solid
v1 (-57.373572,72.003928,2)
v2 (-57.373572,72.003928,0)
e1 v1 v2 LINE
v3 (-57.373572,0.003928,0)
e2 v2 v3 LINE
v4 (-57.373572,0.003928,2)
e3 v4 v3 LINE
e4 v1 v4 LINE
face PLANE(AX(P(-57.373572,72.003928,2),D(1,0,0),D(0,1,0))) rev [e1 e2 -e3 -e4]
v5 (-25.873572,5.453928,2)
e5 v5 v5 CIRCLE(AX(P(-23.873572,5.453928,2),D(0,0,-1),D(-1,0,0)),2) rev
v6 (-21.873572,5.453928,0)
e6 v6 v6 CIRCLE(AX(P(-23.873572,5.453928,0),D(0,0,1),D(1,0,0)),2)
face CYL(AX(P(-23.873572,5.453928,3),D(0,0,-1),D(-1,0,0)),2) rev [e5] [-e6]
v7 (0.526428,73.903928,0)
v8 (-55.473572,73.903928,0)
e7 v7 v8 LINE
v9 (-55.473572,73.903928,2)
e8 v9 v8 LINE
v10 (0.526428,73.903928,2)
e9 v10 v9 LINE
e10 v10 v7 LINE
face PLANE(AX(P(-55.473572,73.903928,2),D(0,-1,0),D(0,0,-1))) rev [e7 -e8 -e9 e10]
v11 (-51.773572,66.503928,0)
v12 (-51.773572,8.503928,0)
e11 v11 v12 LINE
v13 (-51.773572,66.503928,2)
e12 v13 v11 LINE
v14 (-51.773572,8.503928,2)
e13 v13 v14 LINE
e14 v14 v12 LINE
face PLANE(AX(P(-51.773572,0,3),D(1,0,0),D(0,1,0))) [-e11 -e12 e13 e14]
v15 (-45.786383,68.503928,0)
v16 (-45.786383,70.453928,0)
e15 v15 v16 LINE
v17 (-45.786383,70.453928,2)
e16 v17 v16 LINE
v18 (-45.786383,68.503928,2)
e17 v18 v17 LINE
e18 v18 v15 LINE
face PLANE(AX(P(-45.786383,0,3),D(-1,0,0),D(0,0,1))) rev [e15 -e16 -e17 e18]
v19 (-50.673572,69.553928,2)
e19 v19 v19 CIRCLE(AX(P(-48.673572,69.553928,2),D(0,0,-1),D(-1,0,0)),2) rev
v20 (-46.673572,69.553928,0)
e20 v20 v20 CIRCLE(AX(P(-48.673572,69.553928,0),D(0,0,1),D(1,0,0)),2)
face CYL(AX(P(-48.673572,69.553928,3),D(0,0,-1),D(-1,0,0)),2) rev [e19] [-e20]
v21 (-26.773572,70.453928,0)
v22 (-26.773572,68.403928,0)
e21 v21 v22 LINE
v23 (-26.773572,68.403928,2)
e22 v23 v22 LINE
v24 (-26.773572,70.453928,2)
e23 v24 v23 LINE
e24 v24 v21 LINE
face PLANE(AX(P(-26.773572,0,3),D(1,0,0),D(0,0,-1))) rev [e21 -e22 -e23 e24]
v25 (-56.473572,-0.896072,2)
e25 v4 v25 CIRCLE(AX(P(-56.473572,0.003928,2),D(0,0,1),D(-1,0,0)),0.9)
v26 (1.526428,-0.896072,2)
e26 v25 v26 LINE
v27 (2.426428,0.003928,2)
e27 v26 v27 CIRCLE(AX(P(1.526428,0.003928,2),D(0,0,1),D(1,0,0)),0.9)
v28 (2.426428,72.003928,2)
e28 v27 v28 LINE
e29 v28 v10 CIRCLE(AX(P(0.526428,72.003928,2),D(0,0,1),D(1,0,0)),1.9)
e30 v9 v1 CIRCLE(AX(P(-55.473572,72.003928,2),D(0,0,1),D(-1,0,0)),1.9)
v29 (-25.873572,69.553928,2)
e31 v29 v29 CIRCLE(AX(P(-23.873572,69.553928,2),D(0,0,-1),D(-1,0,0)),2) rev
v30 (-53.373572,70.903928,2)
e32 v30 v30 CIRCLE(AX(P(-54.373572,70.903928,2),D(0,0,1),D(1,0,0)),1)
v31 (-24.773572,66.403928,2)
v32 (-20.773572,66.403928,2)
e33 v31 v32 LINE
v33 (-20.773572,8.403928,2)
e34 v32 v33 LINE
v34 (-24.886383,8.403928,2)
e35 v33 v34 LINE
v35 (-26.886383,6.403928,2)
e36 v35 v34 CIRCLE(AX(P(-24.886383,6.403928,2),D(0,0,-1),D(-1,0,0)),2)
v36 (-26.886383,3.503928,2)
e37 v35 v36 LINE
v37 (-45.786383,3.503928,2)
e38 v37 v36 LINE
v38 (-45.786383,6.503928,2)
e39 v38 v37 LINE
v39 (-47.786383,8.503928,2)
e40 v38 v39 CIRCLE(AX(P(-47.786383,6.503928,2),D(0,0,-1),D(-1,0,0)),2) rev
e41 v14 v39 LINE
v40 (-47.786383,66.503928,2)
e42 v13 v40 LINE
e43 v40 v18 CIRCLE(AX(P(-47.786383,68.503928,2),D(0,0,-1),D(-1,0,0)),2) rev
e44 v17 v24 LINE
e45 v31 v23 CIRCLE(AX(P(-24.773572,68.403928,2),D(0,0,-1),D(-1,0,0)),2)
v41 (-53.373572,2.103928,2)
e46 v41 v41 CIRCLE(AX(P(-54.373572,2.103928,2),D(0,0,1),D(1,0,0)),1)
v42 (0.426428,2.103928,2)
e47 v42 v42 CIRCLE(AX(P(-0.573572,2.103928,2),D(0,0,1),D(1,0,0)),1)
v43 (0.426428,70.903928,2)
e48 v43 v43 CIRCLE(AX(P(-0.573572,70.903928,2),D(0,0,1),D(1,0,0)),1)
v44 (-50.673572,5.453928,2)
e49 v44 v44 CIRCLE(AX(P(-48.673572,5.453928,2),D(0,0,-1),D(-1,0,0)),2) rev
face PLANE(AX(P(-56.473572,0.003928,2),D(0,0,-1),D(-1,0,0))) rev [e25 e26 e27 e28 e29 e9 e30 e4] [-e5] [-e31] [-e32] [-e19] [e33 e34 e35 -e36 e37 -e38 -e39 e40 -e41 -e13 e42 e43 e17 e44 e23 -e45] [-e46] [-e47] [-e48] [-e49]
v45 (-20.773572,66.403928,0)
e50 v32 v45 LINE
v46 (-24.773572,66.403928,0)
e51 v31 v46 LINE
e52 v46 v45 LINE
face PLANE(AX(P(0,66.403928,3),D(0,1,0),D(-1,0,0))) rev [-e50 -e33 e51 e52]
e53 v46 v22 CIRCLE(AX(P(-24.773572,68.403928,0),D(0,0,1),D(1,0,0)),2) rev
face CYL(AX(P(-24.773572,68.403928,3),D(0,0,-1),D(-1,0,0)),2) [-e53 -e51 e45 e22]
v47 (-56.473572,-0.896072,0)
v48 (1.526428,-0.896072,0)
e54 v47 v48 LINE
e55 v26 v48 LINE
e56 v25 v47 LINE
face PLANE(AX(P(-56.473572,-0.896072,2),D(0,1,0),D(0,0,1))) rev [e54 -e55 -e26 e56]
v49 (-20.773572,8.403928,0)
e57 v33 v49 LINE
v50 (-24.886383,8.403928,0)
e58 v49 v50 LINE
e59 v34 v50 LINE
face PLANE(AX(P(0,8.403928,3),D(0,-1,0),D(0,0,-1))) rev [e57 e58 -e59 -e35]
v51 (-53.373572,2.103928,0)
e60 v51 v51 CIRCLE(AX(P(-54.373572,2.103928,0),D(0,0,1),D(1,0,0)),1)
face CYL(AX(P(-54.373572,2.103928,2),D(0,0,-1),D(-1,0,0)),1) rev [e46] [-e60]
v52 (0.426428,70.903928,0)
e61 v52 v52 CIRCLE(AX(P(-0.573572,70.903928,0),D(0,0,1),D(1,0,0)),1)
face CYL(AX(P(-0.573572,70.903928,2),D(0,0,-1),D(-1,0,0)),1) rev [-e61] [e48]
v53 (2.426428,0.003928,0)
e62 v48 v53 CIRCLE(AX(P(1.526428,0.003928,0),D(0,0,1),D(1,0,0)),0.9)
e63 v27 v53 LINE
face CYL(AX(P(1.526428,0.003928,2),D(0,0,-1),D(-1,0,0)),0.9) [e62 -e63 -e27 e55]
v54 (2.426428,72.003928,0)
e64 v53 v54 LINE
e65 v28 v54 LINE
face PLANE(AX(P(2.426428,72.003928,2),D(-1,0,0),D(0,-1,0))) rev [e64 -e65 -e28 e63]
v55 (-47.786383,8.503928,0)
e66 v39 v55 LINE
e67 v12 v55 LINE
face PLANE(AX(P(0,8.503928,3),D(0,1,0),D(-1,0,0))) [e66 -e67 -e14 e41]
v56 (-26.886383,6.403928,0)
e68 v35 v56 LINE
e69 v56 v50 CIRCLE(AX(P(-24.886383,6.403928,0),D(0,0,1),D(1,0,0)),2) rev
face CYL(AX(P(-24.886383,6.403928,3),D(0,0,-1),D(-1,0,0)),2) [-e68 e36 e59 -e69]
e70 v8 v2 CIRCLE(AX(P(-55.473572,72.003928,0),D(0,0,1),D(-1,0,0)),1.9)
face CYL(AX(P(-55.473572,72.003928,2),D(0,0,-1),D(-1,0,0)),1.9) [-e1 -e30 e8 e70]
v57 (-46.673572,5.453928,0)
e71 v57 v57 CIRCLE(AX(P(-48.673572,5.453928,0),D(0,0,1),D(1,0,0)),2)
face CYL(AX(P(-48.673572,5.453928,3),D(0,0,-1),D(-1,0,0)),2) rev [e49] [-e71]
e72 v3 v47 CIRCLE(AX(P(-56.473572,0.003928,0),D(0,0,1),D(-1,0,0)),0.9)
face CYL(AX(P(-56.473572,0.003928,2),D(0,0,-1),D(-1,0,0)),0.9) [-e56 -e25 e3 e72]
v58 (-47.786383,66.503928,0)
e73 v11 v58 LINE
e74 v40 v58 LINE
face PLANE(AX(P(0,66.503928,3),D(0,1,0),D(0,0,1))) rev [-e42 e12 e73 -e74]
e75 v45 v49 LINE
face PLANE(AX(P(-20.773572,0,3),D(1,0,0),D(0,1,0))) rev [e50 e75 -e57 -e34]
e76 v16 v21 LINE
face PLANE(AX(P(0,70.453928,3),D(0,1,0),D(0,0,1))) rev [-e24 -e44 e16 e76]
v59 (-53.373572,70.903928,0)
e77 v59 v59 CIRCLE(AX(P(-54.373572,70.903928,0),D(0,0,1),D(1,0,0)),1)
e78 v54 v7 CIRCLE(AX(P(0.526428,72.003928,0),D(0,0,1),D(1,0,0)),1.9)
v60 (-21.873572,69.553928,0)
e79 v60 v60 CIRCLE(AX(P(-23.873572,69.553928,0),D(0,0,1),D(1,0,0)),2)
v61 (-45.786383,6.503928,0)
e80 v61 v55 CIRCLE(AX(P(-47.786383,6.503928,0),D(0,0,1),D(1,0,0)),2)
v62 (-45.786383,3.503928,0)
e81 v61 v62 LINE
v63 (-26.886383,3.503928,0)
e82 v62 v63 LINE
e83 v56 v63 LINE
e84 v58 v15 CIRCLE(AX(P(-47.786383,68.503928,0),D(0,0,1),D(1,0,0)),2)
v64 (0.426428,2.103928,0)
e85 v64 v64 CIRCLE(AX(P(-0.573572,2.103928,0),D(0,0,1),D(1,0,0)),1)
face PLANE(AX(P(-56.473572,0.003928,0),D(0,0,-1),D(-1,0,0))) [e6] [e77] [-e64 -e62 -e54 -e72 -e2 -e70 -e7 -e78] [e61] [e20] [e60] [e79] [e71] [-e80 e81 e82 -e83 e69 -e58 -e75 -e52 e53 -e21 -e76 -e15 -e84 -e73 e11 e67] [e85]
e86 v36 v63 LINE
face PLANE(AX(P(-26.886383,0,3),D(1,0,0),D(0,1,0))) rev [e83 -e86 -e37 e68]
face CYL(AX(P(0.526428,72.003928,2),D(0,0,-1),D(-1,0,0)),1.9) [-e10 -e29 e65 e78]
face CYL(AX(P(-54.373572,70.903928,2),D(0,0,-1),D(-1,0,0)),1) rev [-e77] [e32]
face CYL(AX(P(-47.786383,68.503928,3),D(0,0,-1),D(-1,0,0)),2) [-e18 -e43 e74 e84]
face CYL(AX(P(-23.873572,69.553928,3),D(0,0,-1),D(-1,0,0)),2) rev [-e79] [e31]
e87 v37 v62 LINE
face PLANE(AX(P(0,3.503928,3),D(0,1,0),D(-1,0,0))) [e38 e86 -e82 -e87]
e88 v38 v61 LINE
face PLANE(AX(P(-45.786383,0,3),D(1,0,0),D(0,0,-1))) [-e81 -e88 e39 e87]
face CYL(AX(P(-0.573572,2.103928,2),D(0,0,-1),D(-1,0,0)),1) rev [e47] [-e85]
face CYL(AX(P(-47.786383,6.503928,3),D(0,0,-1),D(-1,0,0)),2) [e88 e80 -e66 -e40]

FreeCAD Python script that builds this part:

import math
import FreeCAD as App
import Part
import Sketcher
from FreeCAD import Vector

doc = App.newDocument("Part")
body = doc.addObject("PartDesign::Body", "Body")

sketch1 = body.newObject("Sketcher::SketchObject", "Sketch")
sketch1.AttachmentSupport = (doc.getObject("XY_Plane"), [""])
sketch1.MapMode = "FlatFace"
sketch1.addGeometry(Part.LineSegment(Vector(-56.5, -0.9, 0), Vector(1.5, -0.9, 0)), False)
sketch1.addGeometry(Part.ArcOfCircle(Part.Circle(Vector(1.5, 0, 0), Vector(0, 0, 1), 0.9), math.radians(-90), math.radians(0)), False)
sketch1.addGeometry(Part.LineSegment(Vector(2.4, 0, 0), Vector(2.4, 72, 0)), False)
sketch1.addGeometry(Part.ArcOfCircle(Part.Circle(Vector(0.5, 72, 0), Vector(0, 0, 1), 1.9), math.radians(0), math.radians(90)), False)
sketch1.addGeometry(Part.LineSegment(Vector(0.5, 73.9, 0), Vector(-55.5, 73.9, 0)), False)
sketch1.addGeometry(Part.ArcOfCircle(Part.Circle(Vector(-55.5, 72, 0), Vector(0, 0, 1), 1.9), math.radians(90), math.radians(180)), False)
sketch1.addGeometry(Part.LineSegment(Vector(-57.4, 72, 0), Vector(-57.4, 0, 0)), False)
sketch1.addGeometry(Part.ArcOfCircle(Part.Circle(Vector(-56.5, 0, 0), Vector(0, 0, 1), 0.9), math.radians(180), math.radians(270)), False)
sketch1.addGeometry(Part.Circle(Vector(-54.4, 2.1, 0), Vector(0, 0, 1), 1), False)
sketch1.addGeometry(Part.Circle(Vector(-0.6, 2.1, 0), Vector(0, 0, 1), 1), False)
sketch1.addGeometry(Part.Circle(Vector(-54.4, 70.9, 0), Vector(0, 0, 1), 1), False)
sketch1.addGeometry(Part.Circle(Vector(-0.6, 70.9, 0), Vector(0, 0, 1), 1), False)
sketch1.addConstraint(Sketcher.Constraint("Tangent", 0, 2, 1, 1))
sketch1.addConstraint(Sketcher.Constraint("Tangent", 1, 2, 2, 1))
sketch1.addConstraint(Sketcher.Constraint("Tangent", 2, 2, 3, 1))
sketch1.addConstraint(Sketcher.Constraint("Tangent", 3, 2, 4, 1))
sketch1.addConstraint(Sketcher.Constraint("Tangent", 4, 2, 5, 1))
sketch1.addConstraint(Sketcher.Constraint("Tangent", 5, 2, 6, 1))
sketch1.addConstraint(Sketcher.Constraint("Tangent", 6, 2, 7, 1))
sketch1.addConstraint(Sketcher.Constraint("Tangent", 7, 2, 0, 1))
sketch1.addConstraint(Sketcher.Constraint("Horizontal", 0))
sketch1.addConstraint(Sketcher.Constraint("Vertical", 2))
sketch1.addConstraint(Sketcher.Constraint("Horizontal", 4))
sketch1.addConstraint(Sketcher.Constraint("Vertical", 6))
sketch1.addConstraint(Sketcher.Constraint("Equal", 3, 5))
sketch1.addConstraint(Sketcher.Constraint("Equal", 1, 7))
sketch1.addConstraint(Sketcher.Constraint("Equal", 8, 9))
sketch1.addConstraint(Sketcher.Constraint("Equal", 9, 10))
sketch1.addConstraint(Sketcher.Constraint("Equal", 10, 11))
sketch1.addConstraint(Sketcher.Constraint("Horizontal", 8, 3, 9, 3))
sketch1.addConstraint(Sketcher.Constraint("Horizontal", 10, 3, 11, 3))
sketch1.addConstraint(Sketcher.Constraint("Vertical", 8, 3, 10, 3))
sketch1.addConstraint(Sketcher.Constraint("Vertical", 9, 3, 11, 3))
sketch1.addConstraint(Sketcher.Constraint("Diameter", 8, 2.0))
sketch1.addConstraint(Sketcher.Constraint("Radius", 1, 0.9))
sketch1.addConstraint(Sketcher.Constraint("Radius", 3, 1.9))
sketch1.addConstraint(Sketcher.Constraint("DistanceX", 0, 1, 0, 2, 58.0))
sketch1.addConstraint(Sketcher.Constraint("DistanceY", 2, 1, 2, 2, 72.0))
sketch1.addConstraint(Sketcher.Constraint("DistanceY", 0, 2, 9, 3, 3.0))
sketch1.addConstraint(Sketcher.Constraint("DistanceX", 9, 3, 1, 2, 3.0))
sketch1.addConstraint(Sketcher.Constraint("DistanceY", 11, 3, 3, 2, 3.0))
sketch1.addConstraint(Sketcher.Constraint("DistanceX", 5, 2, 10, 3, 3.0))
sketch1.addConstraint(Sketcher.Constraint("DistanceX", -1, 1, 1, 3, 1.526428))
sketch1.addConstraint(Sketcher.Constraint("DistanceY", -1, 1, 1, 3, 0.003928))
pad1 = body.newObject("PartDesign::Pad", "Pad")
pad1.Profile = sketch1
pad1.Length = 2

sketch2 = body.newObject("Sketcher::SketchObject", "Sketch001")
sketch2.AttachmentSupport = (doc.getObject("XY_Plane"), [""])
sketch2.MapMode = "FlatFace"
sketch2.addGeometry(Part.LineSegment(Vector(-51.8, 66.5, 0), Vector(-51.8, 8.5, 0)), False)
sketch2.addGeometry(Part.LineSegment(Vector(-51.8, 8.5, 0), Vector(-47.8, 8.5, 0)), False)
sketch2.addGeometry(Part.ArcOfCircle(Part.Circle(Vector(-47.8, 6.5, 0), Vector(0, 0, 1), 2), math.radians(0), math.radians(90)), False)
sketch2.addGeometry(Part.LineSegment(Vector(-45.8, 6.5, 0), Vector(-45.8, 3.5, 0)), False)
sketch2.addGeometry(Part.LineSegment(Vector(-45.8, 3.5, 0), Vector(-26.9, 3.5, 0)), False)
sketch2.addGeometry(Part.LineSegment(Vector(-26.9, 3.5, 0), Vector(-26.9, 6.4, 0)), False)
sketch2.addGeometry(Part.ArcOfCircle(Part.Circle(Vector(-24.9, 6.4, 0), Vector(0, 0, 1), 2), math.radians(90), math.radians(180)), False)
sketch2.addGeometry(Part.LineSegment(Vector(-24.9, 8.4, 0), Vector(-20.8, 8.4, 0)), False)
sketch2.addGeometry(Part.LineSegment(Vector(-20.8, 8.4, 0), Vector(-20.8, 66.4, 0)), False)
sketch2.addGeometry(Part.LineSegment(Vector(-20.8, 66.4, 0), Vector(-24.8, 66.4, 0)), False)
sketch2.addGeometry(Part.ArcOfCircle(Part.Circle(Vector(-24.8, 68.4, 0), Vector(0, 0, 1), 2), math.radians(180), math.radians(270)), False)
sketch2.addGeometry(Part.LineSegment(Vector(-26.8, 68.4, 0), Vector(-26.8, 70.5, 0)), False)
sketch2.addGeometry(Part.LineSegment(Vector(-26.8, 70.5, 0), Vector(-45.8, 70.5, 0)), False)
sketch2.addGeometry(Part.LineSegment(Vector(-45.8, 70.5, 0), Vector(-45.8, 68.5, 0)), False)
sketch2.addGeometry(Part.ArcOfCircle(Part.Circle(Vector(-47.8, 68.5, 0), Vector(0, 0, 1), 2), math.radians(-90), math.radians(0)), False)
sketch2.addGeometry(Part.LineSegment(Vector(-47.8, 66.5, 0), Vector(-51.8, 66.5, 0)), False)
sketch2.addGeometry(Part.Circle(Vector(-23.9, 69.6, 0), Vector(0, 0, 1), 2), False)
sketch2.addGeometry(Part.Circle(Vector(-48.7, 69.6, 0), Vector(0, 0, 1), 2), False)
sketch2.addGeometry(Part.Circle(Vector(-48.7, 5.5, 0), Vector(0, 0, 1), 2), False)
sketch2.addGeometry(Part.Circle(Vector(-23.9, 5.5, 0), Vector(0, 0, 1), 2), False)
sketch2.addConstraint(Sketcher.Constraint("Coincident", 0, 2, 1, 1))
sketch2.addConstraint(Sketcher.Constraint("Tangent", 1, 2, 2, 2))
sketch2.addConstraint(Sketcher.Constraint("Tangent", 2, 1, 3, 1))
sketch2.addConstraint(Sketcher.Constraint("Coincident", 3, 2, 4, 1))
sketch2.addConstraint(Sketcher.Constraint("Coincident", 4, 2, 5, 1))
sketch2.addConstraint(Sketcher.Constraint("Tangent", 5, 2, 6, 2))
sketch2.addConstraint(Sketcher.Constraint("Tangent", 6, 1, 7, 1))
sketch2.addConstraint(Sketcher.Constraint("Coincident", 7, 2, 8, 1))
sketch2.addConstraint(Sketcher.Constraint("Coincident", 8, 2, 9, 1))
sketch2.addConstraint(Sketcher.Constraint("Tangent", 9, 2, 10, 2))
sketch2.addConstraint(Sketcher.Constraint("Tangent", 10, 1, 11, 1))
sketch2.addConstraint(Sketcher.Constraint("Coincident", 11, 2, 12, 1))
sketch2.addConstraint(Sketcher.Constraint("Coincident", 12, 2, 13, 1))
sketch2.addConstraint(Sketcher.Constraint("Tangent", 13, 2, 14, 2))
sketch2.addConstraint(Sketcher.Constraint("Tangent", 14, 1, 15, 1))
sketch2.addConstraint(Sketcher.Constraint("Coincident", 15, 2, 0, 1))
sketch2.addConstraint(Sketcher.Constraint("Vertical", 0))
sketch2.addConstraint(Sketcher.Constraint("Horizontal", 1))
sketch2.addConstraint(Sketcher.Constraint("Vertical", 3))
sketch2.addConstraint(Sketcher.Constraint("Horizontal", 4))
sketch2.addConstraint(Sketcher.Constraint("Vertical", 5))
sketch2.addConstraint(Sketcher.Constraint("Horizontal", 7))
sketch2.addConstraint(Sketcher.Constraint("Vertical", 8))
sketch2.addConstraint(Sketcher.Constraint("Horizontal", 9))
sketch2.addConstraint(Sketcher.Constraint("Vertical", 11))
sketch2.addConstraint(Sketcher.Constraint("Horizontal", 12))
sketch2.addConstraint(Sketcher.Constraint("Vertical", 13))
sketch2.addConstraint(Sketcher.Constraint("Horizontal", 15))
sketch2.addConstraint(Sketcher.Constraint("Equal", 2, 6))
sketch2.addConstraint(Sketcher.Constraint("Equal", 6, 10))
sketch2.addConstraint(Sketcher.Constraint("Equal", 10, 14))
sketch2.addConstraint(Sketcher.Constraint("Equal", 14, 16))
sketch2.addConstraint(Sketcher.Constraint("Equal", 16, 17))
sketch2.addConstraint(Sketcher.Constraint("Equal", 17, 18))
sketch2.addConstraint(Sketcher.Constraint("Equal", 18, 19))
sketch2.addConstraint(Sketcher.Constraint("Horizontal", 16, 3, 17, 3))
sketch2.addConstraint(Sketcher.Constraint("Horizontal", 18, 3, 19, 3))
sketch2.addConstraint(Sketcher.Constraint("Vertical", 2, 3, 14, 3))
sketch2.addConstraint(Sketcher.Constraint("Vertical", 17, 3, 18, 3))
sketch2.addConstraint(Sketcher.Constraint("Vertical", 16, 3, 19, 3))
sketch2.addConstraint(Sketcher.Constraint("Equal", 0, 8))
sketch2.addConstraint(Sketcher.Constraint("Diameter", 16, 4.0))
sketch2.addConstraint(Sketcher.Constraint("DistanceX", 9, 2, 9, 1, 4.0))
sketch2.addConstraint(Sketcher.Constraint("DistanceY", 0, 2, 0, 1, 58.0))
sketch2.addConstraint(Sketcher.Constraint("DistanceY", 3, 2, 3, 1, 3.0))
sketch2.addConstraint(Sketcher.Constraint("DistanceX", 4, 1, 4, 2, 18.9))
sketch2.addConstraint(Sketcher.Constraint("DistanceY", 5, 1, 5, 2, 2.9))
sketch2.addConstraint(Sketcher.Constraint("DistanceY", 11, 1, 11, 2, 2.05))
sketch2.addConstraint(Sketcher.Constraint("DistanceX", 10, 3, 16, 3, 0.9))
sketch2.addConstraint(Sketcher.Constraint("DistanceX", 17, 3, 10, 3, 23.9))
sketch2.addConstraint(Sketcher.Constraint("DistanceY", 18, 3, 17, 3, 64.1))
sketch2.addConstraint(Sketcher.Constraint("DistanceX", 0, 2, 18, 3, 3.1))
sketch2.addConstraint(Sketcher.Constraint("DistanceY", 16, 3, 11, 2, 0.9))
sketch2.addConstraint(Sketcher.Constraint("DistanceX", 1, 1, 1, 2, 3.98719))
sketch2.addConstraint(Sketcher.Constraint("DistanceX", 2, 3, -1, 1, 47.786383))
sketch2.addConstraint(Sketcher.Constraint("DistanceY", -1, 1, 2, 3, 6.503928))
pocket1 = body.newObject("PartDesign::Pocket", "Pocket")
pocket1.Profile = sketch2
pocket1.Length = 3
pocket1.Reversed = True

doc.recompute()
